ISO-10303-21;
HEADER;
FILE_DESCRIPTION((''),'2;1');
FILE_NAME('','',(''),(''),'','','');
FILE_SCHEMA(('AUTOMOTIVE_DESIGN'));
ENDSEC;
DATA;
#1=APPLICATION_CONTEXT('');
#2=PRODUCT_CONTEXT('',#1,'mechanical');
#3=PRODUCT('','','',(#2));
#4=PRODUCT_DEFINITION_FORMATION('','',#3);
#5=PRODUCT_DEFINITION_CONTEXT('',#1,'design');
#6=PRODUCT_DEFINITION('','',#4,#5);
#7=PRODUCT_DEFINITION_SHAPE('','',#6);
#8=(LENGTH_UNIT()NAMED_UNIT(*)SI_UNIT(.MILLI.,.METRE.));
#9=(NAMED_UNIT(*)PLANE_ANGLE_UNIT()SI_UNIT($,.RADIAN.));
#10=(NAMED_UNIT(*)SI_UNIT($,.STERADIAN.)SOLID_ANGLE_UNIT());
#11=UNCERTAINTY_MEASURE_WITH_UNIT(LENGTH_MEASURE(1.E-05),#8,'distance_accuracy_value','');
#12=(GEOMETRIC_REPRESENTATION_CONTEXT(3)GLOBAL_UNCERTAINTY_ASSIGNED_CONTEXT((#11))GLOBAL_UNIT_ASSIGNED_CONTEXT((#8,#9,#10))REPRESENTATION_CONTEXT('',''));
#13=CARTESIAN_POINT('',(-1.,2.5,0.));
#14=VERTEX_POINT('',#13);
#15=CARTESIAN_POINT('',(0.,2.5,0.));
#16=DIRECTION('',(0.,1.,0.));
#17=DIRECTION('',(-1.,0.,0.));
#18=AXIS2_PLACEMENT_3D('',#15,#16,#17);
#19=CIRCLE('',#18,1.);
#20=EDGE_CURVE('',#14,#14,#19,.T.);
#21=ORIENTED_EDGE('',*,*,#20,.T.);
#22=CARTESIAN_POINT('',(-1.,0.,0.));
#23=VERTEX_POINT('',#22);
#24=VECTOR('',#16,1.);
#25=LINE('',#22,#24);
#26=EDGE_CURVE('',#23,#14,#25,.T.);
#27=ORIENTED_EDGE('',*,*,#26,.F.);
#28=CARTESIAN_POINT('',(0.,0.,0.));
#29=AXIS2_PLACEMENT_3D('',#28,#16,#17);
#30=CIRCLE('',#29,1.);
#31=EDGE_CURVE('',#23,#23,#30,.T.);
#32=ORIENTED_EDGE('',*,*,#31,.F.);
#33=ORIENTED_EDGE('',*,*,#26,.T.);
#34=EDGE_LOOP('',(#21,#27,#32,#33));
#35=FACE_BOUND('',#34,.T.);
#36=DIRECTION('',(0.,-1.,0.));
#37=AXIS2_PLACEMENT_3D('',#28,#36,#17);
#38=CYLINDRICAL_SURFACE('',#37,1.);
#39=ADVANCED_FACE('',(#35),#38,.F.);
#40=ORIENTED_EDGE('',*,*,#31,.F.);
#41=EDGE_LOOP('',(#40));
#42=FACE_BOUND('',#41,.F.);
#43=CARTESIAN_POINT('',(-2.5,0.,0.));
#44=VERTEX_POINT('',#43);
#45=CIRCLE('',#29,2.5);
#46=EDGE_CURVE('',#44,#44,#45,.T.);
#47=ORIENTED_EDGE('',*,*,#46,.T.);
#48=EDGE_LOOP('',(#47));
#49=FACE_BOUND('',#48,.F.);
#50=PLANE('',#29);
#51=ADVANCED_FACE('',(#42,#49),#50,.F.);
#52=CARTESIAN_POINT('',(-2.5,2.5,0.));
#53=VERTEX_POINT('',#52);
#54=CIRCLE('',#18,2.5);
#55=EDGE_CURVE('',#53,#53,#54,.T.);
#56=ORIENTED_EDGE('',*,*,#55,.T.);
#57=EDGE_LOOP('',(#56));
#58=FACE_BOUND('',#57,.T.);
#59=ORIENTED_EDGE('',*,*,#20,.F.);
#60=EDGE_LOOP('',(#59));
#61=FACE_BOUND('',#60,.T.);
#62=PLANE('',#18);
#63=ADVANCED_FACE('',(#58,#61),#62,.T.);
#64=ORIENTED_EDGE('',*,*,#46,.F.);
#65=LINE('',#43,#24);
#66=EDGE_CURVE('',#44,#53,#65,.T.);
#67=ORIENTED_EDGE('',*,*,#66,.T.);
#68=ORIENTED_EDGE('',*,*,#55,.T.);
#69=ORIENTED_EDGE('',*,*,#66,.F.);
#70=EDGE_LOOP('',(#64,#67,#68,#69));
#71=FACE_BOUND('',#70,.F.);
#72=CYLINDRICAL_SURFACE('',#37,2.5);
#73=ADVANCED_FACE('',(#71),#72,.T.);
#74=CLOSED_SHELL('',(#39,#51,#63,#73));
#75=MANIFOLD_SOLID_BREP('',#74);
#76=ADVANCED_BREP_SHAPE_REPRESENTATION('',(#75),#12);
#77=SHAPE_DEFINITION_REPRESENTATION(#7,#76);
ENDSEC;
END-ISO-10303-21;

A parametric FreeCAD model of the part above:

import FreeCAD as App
import Part
import Sketcher

V = App.Vector

doc = App.newDocument("Part")
body = doc.addObject("PartDesign::Body", "Body")

# Sketch on XZ plane
sketch1 = body.newObject("Sketcher::SketchObject", "Sketch")
sketch1.AttachmentSupport = (doc.getObject("XZ_Plane"), [""])
sketch1.MapMode = "FlatFace"
sketch1.addGeometry(Part.Circle(V(0, 0, 0), V(0, 0, 1), 2.5), False)
sketch1.addGeometry(Part.Circle(V(0, 0, 0), V(0, 0, 1), 1), False)
sketch1.addConstraint(Sketcher.Constraint("Coincident", 0, 3, -1, 1))
sketch1.addConstraint(Sketcher.Constraint("Coincident", 1, 3, -1, 1))
sketch1.addConstraint(Sketcher.Constraint("Diameter", 0, 5.0))
sketch1.addConstraint(Sketcher.Constraint("Diameter", 1, 2.0))
pad1 = body.newObject("PartDesign::Pad", "Pad")
pad1.Profile = sketch1
pad1.Length = 2.5
pad1.Reversed = True

doc.recompute()
